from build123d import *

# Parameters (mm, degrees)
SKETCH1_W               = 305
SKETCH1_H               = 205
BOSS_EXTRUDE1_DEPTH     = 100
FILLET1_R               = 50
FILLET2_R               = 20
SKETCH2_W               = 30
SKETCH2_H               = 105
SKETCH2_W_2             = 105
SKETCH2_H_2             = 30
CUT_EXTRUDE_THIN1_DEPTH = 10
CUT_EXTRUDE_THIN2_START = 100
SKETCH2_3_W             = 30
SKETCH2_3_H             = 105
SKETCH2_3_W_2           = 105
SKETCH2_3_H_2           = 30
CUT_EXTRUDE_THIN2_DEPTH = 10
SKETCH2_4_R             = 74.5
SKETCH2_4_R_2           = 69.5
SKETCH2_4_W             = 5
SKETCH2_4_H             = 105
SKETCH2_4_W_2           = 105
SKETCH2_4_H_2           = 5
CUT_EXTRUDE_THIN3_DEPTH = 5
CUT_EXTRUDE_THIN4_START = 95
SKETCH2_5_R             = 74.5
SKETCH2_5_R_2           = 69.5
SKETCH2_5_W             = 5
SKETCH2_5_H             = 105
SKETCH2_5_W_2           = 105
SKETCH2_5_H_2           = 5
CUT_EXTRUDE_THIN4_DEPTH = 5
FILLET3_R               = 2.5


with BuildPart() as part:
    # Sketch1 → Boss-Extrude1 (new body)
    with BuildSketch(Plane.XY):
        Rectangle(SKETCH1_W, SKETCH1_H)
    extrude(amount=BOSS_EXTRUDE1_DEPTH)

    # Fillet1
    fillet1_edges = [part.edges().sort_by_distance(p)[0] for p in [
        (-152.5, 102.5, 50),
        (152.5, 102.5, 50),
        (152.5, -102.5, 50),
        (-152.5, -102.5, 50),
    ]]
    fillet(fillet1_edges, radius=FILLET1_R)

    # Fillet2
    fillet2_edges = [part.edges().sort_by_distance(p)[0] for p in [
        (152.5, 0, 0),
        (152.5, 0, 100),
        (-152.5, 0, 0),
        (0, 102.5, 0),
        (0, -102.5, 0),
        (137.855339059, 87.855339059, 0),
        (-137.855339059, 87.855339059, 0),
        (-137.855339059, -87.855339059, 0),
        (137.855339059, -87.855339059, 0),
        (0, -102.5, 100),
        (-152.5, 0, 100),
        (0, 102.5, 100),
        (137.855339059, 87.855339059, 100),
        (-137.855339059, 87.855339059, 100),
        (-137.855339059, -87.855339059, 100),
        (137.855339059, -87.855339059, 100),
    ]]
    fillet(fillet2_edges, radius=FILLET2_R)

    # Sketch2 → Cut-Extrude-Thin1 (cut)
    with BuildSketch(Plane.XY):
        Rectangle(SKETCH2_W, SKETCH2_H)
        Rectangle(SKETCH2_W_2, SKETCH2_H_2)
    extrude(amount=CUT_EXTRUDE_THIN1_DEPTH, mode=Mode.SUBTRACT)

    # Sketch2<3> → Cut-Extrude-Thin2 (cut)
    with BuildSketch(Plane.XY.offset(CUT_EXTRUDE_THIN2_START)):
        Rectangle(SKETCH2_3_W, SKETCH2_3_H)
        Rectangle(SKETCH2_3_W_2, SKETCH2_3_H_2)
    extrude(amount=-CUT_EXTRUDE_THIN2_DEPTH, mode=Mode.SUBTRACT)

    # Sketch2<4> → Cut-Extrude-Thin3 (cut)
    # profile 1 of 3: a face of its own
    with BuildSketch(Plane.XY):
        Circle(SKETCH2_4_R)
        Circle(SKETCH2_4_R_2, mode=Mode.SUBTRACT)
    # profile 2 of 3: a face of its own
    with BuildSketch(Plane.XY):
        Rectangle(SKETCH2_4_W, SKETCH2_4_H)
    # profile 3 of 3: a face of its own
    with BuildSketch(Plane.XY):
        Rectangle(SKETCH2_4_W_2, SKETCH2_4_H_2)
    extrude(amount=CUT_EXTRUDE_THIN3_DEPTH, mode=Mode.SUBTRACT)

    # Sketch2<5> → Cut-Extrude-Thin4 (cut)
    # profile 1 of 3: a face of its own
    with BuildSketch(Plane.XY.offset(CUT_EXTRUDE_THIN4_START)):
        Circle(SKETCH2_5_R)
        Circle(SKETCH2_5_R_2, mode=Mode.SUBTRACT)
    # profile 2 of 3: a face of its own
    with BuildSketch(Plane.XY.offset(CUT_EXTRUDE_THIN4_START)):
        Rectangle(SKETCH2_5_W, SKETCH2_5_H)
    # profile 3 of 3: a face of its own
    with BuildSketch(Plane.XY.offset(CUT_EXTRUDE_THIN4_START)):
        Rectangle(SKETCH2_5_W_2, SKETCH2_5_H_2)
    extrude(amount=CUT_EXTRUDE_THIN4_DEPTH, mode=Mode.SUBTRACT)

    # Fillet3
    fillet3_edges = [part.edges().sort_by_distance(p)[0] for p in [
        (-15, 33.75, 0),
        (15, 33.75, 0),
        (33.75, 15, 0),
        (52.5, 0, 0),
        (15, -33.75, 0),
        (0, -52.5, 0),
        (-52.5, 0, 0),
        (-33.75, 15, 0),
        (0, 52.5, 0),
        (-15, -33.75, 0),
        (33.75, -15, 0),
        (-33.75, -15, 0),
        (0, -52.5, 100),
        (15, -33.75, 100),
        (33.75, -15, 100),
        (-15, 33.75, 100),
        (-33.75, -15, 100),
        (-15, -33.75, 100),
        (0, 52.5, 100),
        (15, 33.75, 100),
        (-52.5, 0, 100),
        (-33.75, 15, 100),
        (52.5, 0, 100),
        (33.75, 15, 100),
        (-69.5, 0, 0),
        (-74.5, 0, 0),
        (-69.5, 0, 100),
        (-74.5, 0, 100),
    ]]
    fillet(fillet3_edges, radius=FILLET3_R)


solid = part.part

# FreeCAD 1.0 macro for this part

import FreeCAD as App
import Part
import Sketcher


def edges_at(feature, points):
    """Names of the edges that pass closest to the given points."""
    edges = feature.Shape.Edges
    near = lambda p: min(range(len(edges)), key=lambda i: edges[i].distToShape(Part.Vertex(*p))[0])
    return sorted({f"Edge{near(p) + 1}" for p in points})

doc = App.newDocument("Part")
params = doc.addObject("Spreadsheet::Sheet", "Params")
for row, (alias, value) in enumerate([
    ("sketch1_width", "305 mm"),
    ("sketch1_height", "205 mm"),
    ("pad1_length", "100 mm"),
    ("fillet_radius", "50 mm"),
    ("fillet2_radius", "20 mm"),
    ("sketch2_width", "30 mm"),
    ("sketch2_width2", "37.5 mm"),
    ("pocket1_length", "10 mm"),
    ("sketch3_width", "30 mm"),
    ("sketch3_width2", "37.5 mm"),
    ("pocket2_length", "10 mm"),
    ("sketch4_diameter", "149 mm"),
    ("sketch4_diameter2", "139 mm"),
    ("sketch4_width", "5 mm"),
    ("sketch4_width2", "50 mm"),
    ("pocket3_length", "5 mm"),
    ("sketch5_diameter", "149 mm"),
    ("sketch5_diameter2", "139 mm"),
    ("sketch5_width", "5 mm"),
    ("sketch5_width2", "50 mm"),
    ("pocket4_length", "5 mm"),
    ("fillet3_radius", "2.5 mm"),
], start=1):
    params.set(f"A{row}", alias)
    params.set(f"B{row}", "=" + value)
    params.setAlias(f"B{row}", alias)

body = doc.addObject("PartDesign::Body", "Body")

# Sketch on XY plane
sketch1 = body.newObject("Sketcher::SketchObject", "Sketch")
sketch1.AttachmentSupport = (doc.getObject("XY_Plane"), [""])
sketch1.MapMode = "FlatFace"
sketch1.addGeometry([
    Part.LineSegment(App.Vector(-152, 102, 0), App.Vector(-152, -102, 0)),
    Part.LineSegment(App.Vector(-152, -102, 0), App.Vector(152, -102, 0)),
    Part.LineSegment(App.Vector(152, -102, 0), App.Vector(152, 102, 0)),
    Part.LineSegment(App.Vector(152, 102, 0), App.Vector(-152, 102, 0)),
], False)
sketch1.addConstraint([
    Sketcher.Constraint("Coincident", 0, 2, 1, 1),
    Sketcher.Constraint("Coincident", 1, 2, 2, 1),
    Sketcher.Constraint("Coincident", 2, 2, 3, 1),
    Sketcher.Constraint("Coincident", 3, 2, 0, 1),
    Sketcher.Constraint("Vertical", 0),
    Sketcher.Constraint("Horizontal", 1),
    Sketcher.Constraint("Vertical", 2),
    Sketcher.Constraint("Horizontal", 3),
    Sketcher.Constraint("Symmetric", 0, 2, 2, 2, -1, 1),
    Sketcher.Constraint("DistanceX", 1, 1, 1, 2, 305.0),
    Sketcher.Constraint("DistanceY", 0, 2, 0, 1, 205.0),
])
sketch1.setExpression("Constraints[9]", "Params.sketch1_width")
sketch1.setExpression("Constraints[10]", "Params.sketch1_height")
pad1 = body.newObject("PartDesign::Pad", "Pad")
pad1.Profile = sketch1
pad1.setExpression("Length", "Params.pad1_length")
doc.recompute()

fillet = body.newObject("PartDesign::Fillet", "Fillet")
fillet.Base = (pad1, edges_at(pad1, [
    (-152.5, 102.5, 50),
    (152.5, 102.5, 50),
    (152.5, -102.5, 50),
    (-152.5, -102.5, 50),
]))
fillet.setExpression("Radius", "Params.fillet_radius")
doc.recompute()

fillet2 = body.newObject("PartDesign::Fillet", "Fillet001")
fillet2.Base = (fillet, edges_at(fillet, [
    (152.5, 0, 0),
    (152.5, 0, 100),
    (-152.5, 0, 0),
    (0, 102.5, 0),
    (0, -102.5, 0),
    (137.855, 87.855, 0),
    (-137.855, 87.855, 0),
    (-137.855, -87.855, 0),
    (137.855, -87.855, 0),
    (0, -102.5, 100),
    (-152.5, 0, 100),
    (0, 102.5, 100),
    (137.855, 87.855, 100),
    (-137.855, 87.855, 100),
    (-137.855, -87.855, 100),
    (137.855, -87.855, 100),
]))
fillet2.setExpression("Radius", "Params.fillet2_radius")

# Sketch on XY plane
sketch2 = body.newObject("Sketcher::SketchObject", "Sketch001")
sketch2.AttachmentSupport = (doc.getObject("XY_Plane"), [""])
sketch2.MapMode = "FlatFace"
sketch2.addGeometry([
    Part.LineSegment(App.Vector(-15, -15, 0), App.Vector(-15, -52, 0)),  # 0
    Part.LineSegment(App.Vector(-15, -52, 0), App.Vector(15, -52, 0)),  # 1
    Part.LineSegment(App.Vector(15, -52, 0), App.Vector(15, -15, 0)),  # 2
    Part.LineSegment(App.Vector(15, -15, 0), App.Vector(52, -15, 0)),  # 3
    Part.LineSegment(App.Vector(52, -15, 0), App.Vector(52, 15, 0)),  # 4
    Part.LineSegment(App.Vector(52, 15, 0), App.Vector(15, 15, 0)),  # 5
    Part.LineSegment(App.Vector(15, 15, 0), App.Vector(15, 52, 0)),  # 6
    Part.LineSegment(App.Vector(15, 52, 0), App.Vector(-15, 52, 0)),  # 7
    Part.LineSegment(App.Vector(-15, 52, 0), App.Vector(-15, 15, 0)),  # 8
    Part.LineSegment(App.Vector(-15, 15, 0), App.Vector(-52, 15, 0)),  # 9
    Part.LineSegment(App.Vector(-52, 15, 0), App.Vector(-52, -15, 0)),  # 10
    Part.LineSegment(App.Vector(-52, -15, 0), App.Vector(-15, -15, 0)),  # 11
], False)
sketch2.addConstraint([
    Sketcher.Constraint("Coincident", 0, 2, 1, 1),
    Sketcher.Constraint("Coincident", 1, 2, 2, 1),
    Sketcher.Constraint("Coincident", 2, 2, 3, 1),
    Sketcher.Constraint("Coincident", 3, 2, 4, 1),
    Sketcher.Constraint("Coincident", 4, 2, 5, 1),
    Sketcher.Constraint("Coincident", 5, 2, 6, 1),
    Sketcher.Constraint("Coincident", 6, 2, 7, 1),
    Sketcher.Constraint("Coincident", 7, 2, 8, 1),
    Sketcher.Constraint("Coincident", 8, 2, 9, 1),
    Sketcher.Constraint("Coincident", 9, 2, 10, 1),
    Sketcher.Constraint("Coincident", 10, 2, 11, 1),
    Sketcher.Constraint("Coincident", 11, 2, 0, 1),
    Sketcher.Constraint("Vertical", 0),
    Sketcher.Constraint("Horizontal", 1),
    Sketcher.Constraint("Vertical", 2),
    Sketcher.Constraint("Horizontal", 3),
    Sketcher.Constraint("Vertical", 4),
    Sketcher.Constraint("Horizontal", 5),
    Sketcher.Constraint("Vertical", 6),
    Sketcher.Constraint("Horizontal", 7),
    Sketcher.Constraint("Vertical", 8),
    Sketcher.Constraint("Horizontal", 9),
    Sketcher.Constraint("Vertical", 10),
    Sketcher.Constraint("Horizontal", 11),
    Sketcher.Constraint("Symmetric", 0, 2, 6, 2, -1, 1),
    Sketcher.Constraint("Symmetric", 2, 2, 8, 2, -1, 1),
    Sketcher.Constraint("Symmetric", 4, 2, 10, 2, -1, 1),
    Sketcher.Constraint("Symmetric", 5, 2, 8, 2, -2),
    Sketcher.Constraint("Equal", 11, 0),
    Sketcher.Constraint("Equal", 7, 4),
    Sketcher.Constraint("DistanceX", 1, 1, 1, 2, 30.0),
    Sketcher.Constraint("DistanceX", 3, 1, 3, 2, 37.5),
])
sketch2.setExpression("Constraints[30]", "Params.sketch2_width")
sketch2.setExpression("Constraints[31]", "Params.sketch2_width2")
pocket1 = body.newObject("PartDesign::Pocket", "Pocket")
pocket1.Profile = sketch2
pocket1.setExpression("Length", "Params.pocket1_length")
pocket1.Reversed = True

# Sketch on XY plane
sketch3 = body.newObject("Sketcher::SketchObject", "Sketch002")
sketch3.AttachmentSupport = (doc.getObject("XY_Plane"), [""])
sketch3.MapMode = "FlatFace"
sketch3.AttachmentOffset = App.Placement(App.Vector(0, 0, 100), App.Rotation())
sketch3.addGeometry([
    Part.LineSegment(App.Vector(-15, -15, 0), App.Vector(-15, -52, 0)),  # 0
    Part.LineSegment(App.Vector(-15, -52, 0), App.Vector(15, -52, 0)),  # 1
    Part.LineSegment(App.Vector(15, -52, 0), App.Vector(15, -15, 0)),  # 2
    Part.LineSegment(App.Vector(15, -15, 0), App.Vector(52, -15, 0)),  # 3
    Part.LineSegment(App.Vector(52, -15, 0), App.Vector(52, 15, 0)),  # 4
    Part.LineSegment(App.Vector(52, 15, 0), App.Vector(15, 15, 0)),  # 5
    Part.LineSegment(App.Vector(15, 15, 0), App.Vector(15, 52, 0)),  # 6
    Part.LineSegment(App.Vector(15, 52, 0), App.Vector(-15, 52, 0)),  # 7
    Part.LineSegment(App.Vector(-15, 52, 0), App.Vector(-15, 15, 0)),  # 8
    Part.LineSegment(App.Vector(-15, 15, 0), App.Vector(-52, 15, 0)),  # 9
    Part.LineSegment(App.Vector(-52, 15, 0), App.Vector(-52, -15, 0)),  # 10
    Part.LineSegment(App.Vector(-52, -15, 0), App.Vector(-15, -15, 0)),  # 11
], False)
sketch3.addConstraint([
    Sketcher.Constraint("Coincident", 0, 2, 1, 1),
    Sketcher.Constraint("Coincident", 1, 2, 2, 1),
    Sketcher.Constraint("Coincident", 2, 2, 3, 1),
    Sketcher.Constraint("Coincident", 3, 2, 4, 1),
    Sketcher.Constraint("Coincident", 4, 2, 5, 1),
    Sketcher.Constraint("Coincident", 5, 2, 6, 1),
    Sketcher.Constraint("Coincident", 6, 2, 7, 1),
    Sketcher.Constraint("Coincident", 7, 2, 8, 1),
    Sketcher.Constraint("Coincident", 8, 2, 9, 1),
    Sketcher.Constraint("Coincident", 9, 2, 10, 1),
    Sketcher.Constraint("Coincident", 10, 2, 11, 1),
    Sketcher.Constraint("Coincident", 11, 2, 0, 1),
    Sketcher.Constraint("Vertical", 0),
    Sketcher.Constraint("Horizontal", 1),
    Sketcher.Constraint("Vertical", 2),
    Sketcher.Constraint("Horizontal", 3),
    Sketcher.Constraint("Vertical", 4),
    Sketcher.Constraint("Horizontal", 5),
    Sketcher.Constraint("Vertical", 6),
    Sketcher.Constraint("Horizontal", 7),
    Sketcher.Constraint("Vertical", 8),
    Sketcher.Constraint("Horizontal", 9),
    Sketcher.Constraint("Vertical", 10),
    Sketcher.Constraint("Horizontal", 11),
    Sketcher.Constraint("Symmetric", 0, 2, 6, 2, -1, 1),
    Sketcher.Constraint("Symmetric", 2, 2, 8, 2, -1, 1),
    Sketcher.Constraint("Symmetric", 4, 2, 10, 2, -1, 1),
    Sketcher.Constraint("Symmetric", 5, 2, 8, 2, -2),
    Sketcher.Constraint("Equal", 11, 0),
    Sketcher.Constraint("Equal", 7, 4),
    Sketcher.Constraint("DistanceX", 1, 1, 1, 2, 30.0),
    Sketcher.Constraint("DistanceX", 3, 1, 3, 2, 37.5),
])
sketch3.setExpression("Constraints[30]", "Params.sketch3_width")
sketch3.setExpression("Constraints[31]", "Params.sketch3_width2")
pocket2 = body.newObject("PartDesign::Pocket", "Pocket001")
pocket2.Profile = sketch3
pocket2.setExpression("Length", "Params.pocket2_length")

# Sketch on XY plane
sketch4 = body.newObject("Sketcher::SketchObject", "Sketch003")
sketch4.AttachmentSupport = (doc.getObject("XY_Plane"), [""])
sketch4.MapMode = "FlatFace"
sketch4.addGeometry([
    Part.Circle(App.Vector(0, 0, 0), App.Vector(0, 0, 1), 74),  # 0
    Part.Circle(App.Vector(0, 0, 0), App.Vector(0, 0, 1), 70),  # 1
    Part.LineSegment(App.Vector(-2, -2, 0), App.Vector(-2, -52, 0)),  # 2
    Part.LineSegment(App.Vector(-2, -52, 0), App.Vector(2, -52, 0)),  # 3
    Part.LineSegment(App.Vector(2, -52, 0), App.Vector(2, -2, 0)),  # 4
    Part.LineSegment(App.Vector(2, -2, 0), App.Vector(52, -2, 0)),  # 5
    Part.LineSegment(App.Vector(52, -2, 0), App.Vector(52, 2, 0)),  # 6
    Part.LineSegment(App.Vector(52, 2, 0), App.Vector(2, 2, 0)),  # 7
    Part.LineSegment(App.Vector(2, 2, 0), App.Vector(2, 52, 0)),  # 8
    Part.LineSegment(App.Vector(2, 52, 0), App.Vector(-2, 52, 0)),  # 9
    Part.LineSegment(App.Vector(-2, 52, 0), App.Vector(-2, 2, 0)),  # 10
    Part.LineSegment(App.Vector(-2, 2, 0), App.Vector(-52, 2, 0)),  # 11
    Part.LineSegment(App.Vector(-52, 2, 0), App.Vector(-52, -2, 0)),  # 12
    Part.LineSegment(App.Vector(-52, -2, 0), App.Vector(-2, -2, 0)),  # 13
], False)
sketch4.addConstraint([
    Sketcher.Constraint("Coincident", 2, 2, 3, 1),
    Sketcher.Constraint("Coincident", 3, 2, 4, 1),
    Sketcher.Constraint("Coincident", 4, 2, 5, 1),
    Sketcher.Constraint("Coincident", 5, 2, 6, 1),
    Sketcher.Constraint("Coincident", 6, 2, 7, 1),
    Sketcher.Constraint("Coincident", 7, 2, 8, 1),
    Sketcher.Constraint("Coincident", 8, 2, 9, 1),
    Sketcher.Constraint("Coincident", 9, 2, 10, 1),
    Sketcher.Constraint("Coincident", 10, 2, 11, 1),
    Sketcher.Constraint("Coincident", 11, 2, 12, 1),
    Sketcher.Constraint("Coincident", 12, 2, 13, 1),
    Sketcher.Constraint("Coincident", 13, 2, 2, 1),
    Sketcher.Constraint("Vertical", 2),
    Sketcher.Constraint("Horizontal", 3),
    Sketcher.Constraint("Vertical", 4),
    Sketcher.Constraint("Horizontal", 5),
    Sketcher.Constraint("Vertical", 6),
    Sketcher.Constraint("Horizontal", 7),
    Sketcher.Constraint("Vertical", 8),
    Sketcher.Constraint("Horizontal", 9),
    Sketcher.Constraint("Vertical", 10),
    Sketcher.Constraint("Horizontal", 11),
    Sketcher.Constraint("Vertical", 12),
    Sketcher.Constraint("Horizontal", 13),
    Sketcher.Constraint("Coincident", 0, 3, -1, 1),
    Sketcher.Constraint("Coincident", 1, 3, -1, 1),
    Sketcher.Constraint("Symmetric", 2, 2, 8, 2, -1, 1),
    Sketcher.Constraint("Symmetric", 4, 2, 10, 2, -1, 1),
    Sketcher.Constraint("Symmetric", 6, 2, 12, 2, -1, 1),
    Sketcher.Constraint("Symmetric", 7, 2, 10, 2, -2),
    Sketcher.Constraint("Equal", 13, 2),
    Sketcher.Constraint("Equal", 9, 6),
    Sketcher.Constraint("Diameter", 0, 149.0),
    Sketcher.Constraint("Diameter", 1, 139.0),
    Sketcher.Constraint("DistanceX", 3, 1, 3, 2, 5.0),
    Sketcher.Constraint("DistanceX", 5, 1, 5, 2, 50.0),
])
sketch4.setExpression("Constraints[32]", "Params.sketch4_diameter")
sketch4.setExpression("Constraints[33]", "Params.sketch4_diameter2")
sketch4.setExpression("Constraints[34]", "Params.sketch4_width")
sketch4.setExpression("Constraints[35]", "Params.sketch4_width2")
pocket3 = body.newObject("PartDesign::Pocket", "Pocket002")
pocket3.Profile = sketch4
pocket3.setExpression("Length", "Params.pocket3_length")
pocket3.Reversed = True

# Sketch on XY plane
sketch5 = body.newObject("Sketcher::SketchObject", "Sketch004")
sketch5.AttachmentSupport = (doc.getObject("XY_Plane"), [""])
sketch5.MapMode = "FlatFace"
sketch5.AttachmentOffset = App.Placement(App.Vector(0, 0, 95), App.Rotation())
sketch5.addGeometry([
    Part.Circle(App.Vector(0, 0, 0), App.Vector(0, 0, 1), 74),  # 0
    Part.Circle(App.Vector(0, 0, 0), App.Vector(0, 0, 1), 70),  # 1
    Part.LineSegment(App.Vector(-2, -2, 0), App.Vector(-2, -52, 0)),  # 2
    Part.LineSegment(App.Vector(-2, -52, 0), App.Vector(2, -52, 0)),  # 3
    Part.LineSegment(App.Vector(2, -52, 0), App.Vector(2, -2, 0)),  # 4
    Part.LineSegment(App.Vector(2, -2, 0), App.Vector(52, -2, 0)),  # 5
    Part.LineSegment(App.Vector(52, -2, 0), App.Vector(52, 2, 0)),  # 6
    Part.LineSegment(App.Vector(52, 2, 0), App.Vector(2, 2, 0)),  # 7
    Part.LineSegment(App.Vector(2, 2, 0), App.Vector(2, 52, 0)),  # 8
    Part.LineSegment(App.Vector(2, 52, 0), App.Vector(-2, 52, 0)),  # 9
    Part.LineSegment(App.Vector(-2, 52, 0), App.Vector(-2, 2, 0)),  # 10
    Part.LineSegment(App.Vector(-2, 2, 0), App.Vector(-52, 2, 0)),  # 11
    Part.LineSegment(App.Vector(-52, 2, 0), App.Vector(-52, -2, 0)),  # 12
    Part.LineSegment(App.Vector(-52, -2, 0), App.Vector(-2, -2, 0)),  # 13
], False)
sketch5.addConstraint([
    Sketcher.Constraint("Coincident", 2, 2, 3, 1),
    Sketcher.Constraint("Coincident", 3, 2, 4, 1),
    Sketcher.Constraint("Coincident", 4, 2, 5, 1),
    Sketcher.Constraint("Coincident", 5, 2, 6, 1),
    Sketcher.Constraint("Coincident", 6, 2, 7, 1),
    Sketcher.Constraint("Coincident", 7, 2, 8, 1),
    Sketcher.Constraint("Coincident", 8, 2, 9, 1),
    Sketcher.Constraint("Coincident", 9, 2, 10, 1),
    Sketcher.Constraint("Coincident", 10, 2, 11, 1),
    Sketcher.Constraint("Coincident", 11, 2, 12, 1),
    Sketcher.Constraint("Coincident", 12, 2, 13, 1),
    Sketcher.Constraint("Coincident", 13, 2, 2, 1),
    Sketcher.Constraint("Vertical", 2),
    Sketcher.Constraint("Horizontal", 3),
    Sketcher.Constraint("Vertical", 4),
    Sketcher.Constraint("Horizontal", 5),
    Sketcher.Constraint("Vertical", 6),
    Sketcher.Constraint("Horizontal", 7),
    Sketcher.Constraint("Vertical", 8),
    Sketcher.Constraint("Horizontal", 9),
    Sketcher.Constraint("Vertical", 10),
    Sketcher.Constraint("Horizontal", 11),
    Sketcher.Constraint("Vertical", 12),
    Sketcher.Constraint("Horizontal", 13),
    Sketcher.Constraint("Coincident", 0, 3, -1, 1),
    Sketcher.Constraint("Coincident", 1, 3, -1, 1),
    Sketcher.Constraint("Symmetric", 2, 2, 8, 2, -1, 1),
    Sketcher.Constraint("Symmetric", 4, 2, 10, 2, -1, 1),
    Sketcher.Constraint("Symmetric", 6, 2, 12, 2, -1, 1),
    Sketcher.Constraint("Symmetric", 7, 2, 10, 2, -2),
    Sketcher.Constraint("Equal", 13, 2),
    Sketcher.Constraint("Equal", 9, 6),
    Sketcher.Constraint("Diameter", 0, 149.0),
    Sketcher.Constraint("Diameter", 1, 139.0),
    Sketcher.Constraint("DistanceX", 3, 1, 3, 2, 5.0),
    Sketcher.Constraint("DistanceX", 5, 1, 5, 2, 50.0),
])
sketch5.setExpression("Constraints[32]", "Params.sketch5_diameter")
sketch5.setExpression("Constraints[33]", "Params.sketch5_diameter2")
sketch5.setExpression("Constraints[34]", "Params.sketch5_width")
sketch5.setExpression("Constraints[35]", "Params.sketch5_width2")
pocket4 = body.newObject("PartDesign::Pocket", "Pocket003")
pocket4.Profile = sketch5
pocket4.setExpression("Length", "Params.pocket4_length")
pocket4.Reversed = True
doc.recompute()

fillet3 = body.newObject("PartDesign::Fillet", "Fillet002")
fillet3.Base = (pocket4, edges_at(pocket4, [
    (-15, 33.75, 0),
    (15, 33.75, 0),
    (33.75, 15, 0),
    (52.5, 0, 0),
    (15, -33.75, 0),
    (0, -52.5, 0),
    (-52.5, 0, 0),
    (-33.75, 15, 0),
    (0, 52.5, 0),
    (-15, -33.75, 0),
    (33.75, -15, 0),
    (-33.75, -15, 0),
    (0, -52.5, 100),
    (15, -33.75, 100),
    (33.75, -15, 100),
    (-15, 33.75, 100),
    (-33.75, -15, 100),
    (-15, -33.75, 100),
    (0, 52.5, 100),
    (15, 33.75, 100),
    (-52.5, 0, 100),
    (-33.75, 15, 100),
    (52.5, 0, 100),
    (33.75, 15, 100),
    (-69.5, 0, 0),
    (-74.5, 0, 0),
    (-69.5, 0, 100),
    (-74.5, 0, 100),
]))
fillet3.setExpression("Radius", "Params.fillet3_radius")

doc.recompute()
